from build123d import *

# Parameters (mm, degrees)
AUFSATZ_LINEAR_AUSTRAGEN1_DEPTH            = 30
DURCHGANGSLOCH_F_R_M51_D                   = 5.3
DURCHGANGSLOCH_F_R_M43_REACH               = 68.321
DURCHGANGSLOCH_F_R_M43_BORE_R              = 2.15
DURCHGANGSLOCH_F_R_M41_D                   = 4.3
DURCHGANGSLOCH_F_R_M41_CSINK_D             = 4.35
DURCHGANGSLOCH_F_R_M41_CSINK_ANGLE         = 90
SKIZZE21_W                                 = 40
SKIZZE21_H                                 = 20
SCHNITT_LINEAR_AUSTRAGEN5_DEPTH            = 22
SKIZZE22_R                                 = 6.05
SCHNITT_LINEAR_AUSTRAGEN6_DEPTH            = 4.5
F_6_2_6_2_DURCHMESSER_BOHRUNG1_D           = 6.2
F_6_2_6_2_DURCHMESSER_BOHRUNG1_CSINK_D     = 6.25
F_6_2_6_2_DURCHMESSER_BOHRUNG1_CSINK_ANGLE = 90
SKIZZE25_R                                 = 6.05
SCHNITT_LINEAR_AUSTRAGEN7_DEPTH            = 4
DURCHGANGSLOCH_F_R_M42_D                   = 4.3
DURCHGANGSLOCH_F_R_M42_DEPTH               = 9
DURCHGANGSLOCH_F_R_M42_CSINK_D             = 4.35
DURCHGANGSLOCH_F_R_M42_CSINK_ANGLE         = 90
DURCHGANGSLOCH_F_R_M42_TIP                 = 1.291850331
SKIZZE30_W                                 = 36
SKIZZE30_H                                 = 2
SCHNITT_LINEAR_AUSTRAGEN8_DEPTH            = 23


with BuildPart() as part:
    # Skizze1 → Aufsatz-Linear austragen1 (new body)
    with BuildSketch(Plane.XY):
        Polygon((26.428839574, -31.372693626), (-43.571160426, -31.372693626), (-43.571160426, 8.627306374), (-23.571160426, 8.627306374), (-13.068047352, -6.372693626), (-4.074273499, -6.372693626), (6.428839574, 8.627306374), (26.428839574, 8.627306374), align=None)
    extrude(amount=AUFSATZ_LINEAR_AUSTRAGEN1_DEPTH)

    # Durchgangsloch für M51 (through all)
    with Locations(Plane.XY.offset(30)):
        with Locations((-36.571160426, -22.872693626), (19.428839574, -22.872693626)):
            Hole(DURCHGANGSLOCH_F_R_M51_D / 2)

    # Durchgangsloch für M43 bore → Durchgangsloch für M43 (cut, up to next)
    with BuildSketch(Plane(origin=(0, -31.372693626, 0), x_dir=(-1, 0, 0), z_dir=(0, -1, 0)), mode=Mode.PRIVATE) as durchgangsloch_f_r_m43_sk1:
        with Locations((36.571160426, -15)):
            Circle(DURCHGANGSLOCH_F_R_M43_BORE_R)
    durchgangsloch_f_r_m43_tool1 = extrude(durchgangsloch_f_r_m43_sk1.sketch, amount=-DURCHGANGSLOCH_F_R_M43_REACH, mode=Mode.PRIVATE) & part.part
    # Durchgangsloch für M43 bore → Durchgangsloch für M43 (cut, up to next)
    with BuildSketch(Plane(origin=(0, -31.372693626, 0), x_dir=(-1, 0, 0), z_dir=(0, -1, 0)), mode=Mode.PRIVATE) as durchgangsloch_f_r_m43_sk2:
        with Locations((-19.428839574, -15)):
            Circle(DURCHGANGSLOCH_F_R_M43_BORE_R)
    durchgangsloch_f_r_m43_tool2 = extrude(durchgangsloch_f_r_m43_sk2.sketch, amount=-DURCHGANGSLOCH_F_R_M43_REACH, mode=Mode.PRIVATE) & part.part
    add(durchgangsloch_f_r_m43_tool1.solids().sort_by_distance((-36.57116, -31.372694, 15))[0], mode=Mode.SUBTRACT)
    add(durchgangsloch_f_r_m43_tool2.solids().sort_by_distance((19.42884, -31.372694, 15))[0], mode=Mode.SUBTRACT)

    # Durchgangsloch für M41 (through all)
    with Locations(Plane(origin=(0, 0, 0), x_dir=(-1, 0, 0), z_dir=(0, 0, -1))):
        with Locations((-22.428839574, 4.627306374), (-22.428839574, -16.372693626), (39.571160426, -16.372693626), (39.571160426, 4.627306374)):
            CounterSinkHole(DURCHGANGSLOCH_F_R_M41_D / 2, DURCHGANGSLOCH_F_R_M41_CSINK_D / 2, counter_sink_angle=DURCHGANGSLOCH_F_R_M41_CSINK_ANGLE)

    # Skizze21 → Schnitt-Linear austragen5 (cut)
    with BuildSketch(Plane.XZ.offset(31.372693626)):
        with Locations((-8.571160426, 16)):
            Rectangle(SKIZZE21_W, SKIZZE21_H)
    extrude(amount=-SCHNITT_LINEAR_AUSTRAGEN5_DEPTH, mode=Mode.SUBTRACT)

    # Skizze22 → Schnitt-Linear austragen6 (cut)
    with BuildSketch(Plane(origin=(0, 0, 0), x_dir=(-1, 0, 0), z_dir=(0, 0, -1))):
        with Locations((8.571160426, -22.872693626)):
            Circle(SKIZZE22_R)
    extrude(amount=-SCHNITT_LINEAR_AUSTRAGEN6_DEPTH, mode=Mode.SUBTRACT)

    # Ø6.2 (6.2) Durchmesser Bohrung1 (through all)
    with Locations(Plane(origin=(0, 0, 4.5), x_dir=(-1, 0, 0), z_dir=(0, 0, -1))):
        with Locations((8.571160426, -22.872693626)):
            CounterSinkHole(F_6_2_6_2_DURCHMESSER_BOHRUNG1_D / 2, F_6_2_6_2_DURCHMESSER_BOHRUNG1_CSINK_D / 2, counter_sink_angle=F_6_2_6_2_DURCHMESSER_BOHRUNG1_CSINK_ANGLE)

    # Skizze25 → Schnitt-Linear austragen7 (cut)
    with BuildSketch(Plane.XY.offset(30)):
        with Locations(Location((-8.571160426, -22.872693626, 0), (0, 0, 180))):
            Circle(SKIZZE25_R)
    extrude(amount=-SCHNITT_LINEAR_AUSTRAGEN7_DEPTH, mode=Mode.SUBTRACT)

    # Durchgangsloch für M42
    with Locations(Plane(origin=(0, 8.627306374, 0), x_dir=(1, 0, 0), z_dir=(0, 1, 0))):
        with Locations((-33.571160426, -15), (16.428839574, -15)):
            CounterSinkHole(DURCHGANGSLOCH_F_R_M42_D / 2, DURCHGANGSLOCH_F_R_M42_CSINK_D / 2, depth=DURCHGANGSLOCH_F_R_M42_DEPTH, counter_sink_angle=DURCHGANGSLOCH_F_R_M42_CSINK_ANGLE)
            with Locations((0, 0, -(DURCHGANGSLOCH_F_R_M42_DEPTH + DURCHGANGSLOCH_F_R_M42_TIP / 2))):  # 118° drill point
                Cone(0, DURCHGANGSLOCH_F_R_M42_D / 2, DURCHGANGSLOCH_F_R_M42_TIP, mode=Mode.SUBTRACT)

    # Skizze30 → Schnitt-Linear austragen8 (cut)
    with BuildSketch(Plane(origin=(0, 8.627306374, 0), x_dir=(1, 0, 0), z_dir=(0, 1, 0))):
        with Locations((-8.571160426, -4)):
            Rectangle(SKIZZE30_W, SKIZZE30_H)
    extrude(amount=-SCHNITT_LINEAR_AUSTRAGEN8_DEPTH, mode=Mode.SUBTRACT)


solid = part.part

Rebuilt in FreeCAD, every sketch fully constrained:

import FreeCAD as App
import Part
import Sketcher
Q = App.Units.Quantity


def add_polygon(sketch, points):
    """Adds a closed chain of lines whose ends are joined by coincident constraints."""
    first, n = sketch.GeometryCount, len(points)
    for a, b in zip(points, points[1:] + points[:1]):
        sketch.addGeometry(Part.LineSegment(App.Vector(*a, 0), App.Vector(*b, 0)), False)
    for i in range(n):
        sketch.addConstraint(Sketcher.Constraint("Coincident", first + i, 2, first + (i + 1) % n, 1))

doc = App.newDocument("Part")
body = doc.addObject("PartDesign::Body", "Body")

# Sketch on XY plane
sketch1 = body.newObject("Sketcher::SketchObject", "Sketch")
sketch1.AttachmentSupport = (doc.getObject("XY_Plane"), [""])
sketch1.MapMode = "FlatFace"
add_polygon(sketch1, [(-44, -31), (26, -31), (26, 9), (6, 9), (-4, -6), (-13, -6), (-24, 9), (-44, 9)])  # lines 0-7
sketch1.addConstraint([
    Sketcher.Constraint("Horizontal", 0),
    Sketcher.Constraint("Vertical", 1),
    Sketcher.Constraint("Horizontal", 2),
    Sketcher.Constraint("Horizontal", 4),
    Sketcher.Constraint("Horizontal", 6),
    Sketcher.Constraint("Vertical", 7),
    Sketcher.Constraint("Horizontal", 2, 2, 5, 2),
    Sketcher.Constraint("Equal", 2, 6),
    Sketcher.Constraint("Equal", 3, 5),
    Sketcher.Constraint("DistanceX", 0, 1, 0, 2, Q("70 mm")),
    Sketcher.Constraint("DistanceX", 2, 2, 2, 1, Q("20 mm")),
    Sketcher.Constraint("DistanceY", 1, 1, 1, 2, Q("40 mm")),
    Sketcher.Constraint("Angle", 3, Q("-125 deg")),
    Sketcher.Constraint("DistanceY", 3, 2, 2, 2, Q("15 mm")),
    Sketcher.Constraint("DistanceX", -1, 1, 0, 2, Q("26.42884 mm")),
    Sketcher.Constraint("DistanceY", 0, 2, -1, 1, Q("31.372694 mm")),
])
pad1 = body.newObject("PartDesign::Pad", "Pad")
pad1.Profile = sketch1
pad1.Length = 30

# Sketch on XY plane
sketch2 = body.newObject("Sketcher::SketchObject", "Sketch001")
sketch2.AttachmentSupport = (doc.getObject("XY_Plane"), [""])
sketch2.MapMode = "FlatFace"
sketch2.AttachmentOffset = App.Placement(App.Vector(0, 0, 30), App.Rotation())
sketch2.addGeometry([
    Part.Circle(App.Vector(-36.6, -22.9, 0), App.Vector(0, 0, 1), 2.6),
    Part.Circle(App.Vector(19.4, -22.9, 0), App.Vector(0, 0, 1), 2.6),
], False)
sketch2.addConstraint([
    Sketcher.Constraint("Equal", 0, 1),
    Sketcher.Constraint("Horizontal", 0, 3, 1, 3),
    Sketcher.Constraint("Diameter", 0, Q("5.3 mm")),
    Sketcher.Constraint("DistanceX", 0, 3, 1, 3, Q("56 mm")),
    Sketcher.Constraint("DistanceX", 0, 3, -1, 1, Q("36.57116 mm")),
    Sketcher.Constraint("DistanceY", 0, 3, -1, 1, Q("22.872694 mm")),
])
doc.recompute()
hole = body.newObject("PartDesign::Hole", "Hole")
hole.Profile = sketch2
hole.ThreadType = "None"
hole.Diameter = 5.3
hole.DepthType = "ThroughAll"

# Sketch on XZ plane
sketch3 = body.newObject("Sketcher::SketchObject", "Sketch002")
sketch3.AttachmentSupport = (doc.getObject("XZ_Plane"), [""])
sketch3.MapMode = "FlatFace"
sketch3.AttachmentOffset = App.Placement(App.Vector(0, 0, 31.372694), App.Rotation())
sketch3.addGeometry(Part.Circle(App.Vector(-36.6, 15, 0), App.Vector(0, 0, 1), 2.1), False)
sketch3.addConstraint([
    Sketcher.Constraint("Diameter", 0, Q("4.3 mm")),
    Sketcher.Constraint("DistanceY", -1, 1, 0, 3, Q("15 mm")),
    Sketcher.Constraint("DistanceX", 0, 3, -1, 1, Q("36.57116 mm")),
])
pocket1 = body.newObject("PartDesign::Pocket", "Pocket")
pocket1.Profile = sketch3
pocket1.Length = 6.950807

# Sketch on XZ plane
sketch4 = body.newObject("Sketcher::SketchObject", "Sketch003")
sketch4.AttachmentSupport = (doc.getObject("XZ_Plane"), [""])
sketch4.MapMode = "FlatFace"
sketch4.AttachmentOffset = App.Placement(App.Vector(0, 0, 31.372694), App.Rotation())
sketch4.addGeometry(Part.Circle(App.Vector(19.4, 15, 0), App.Vector(0, 0, 1), 2.1), False)
sketch4.addConstraint([
    Sketcher.Constraint("Diameter", 0, Q("4.3 mm")),
    Sketcher.Constraint("DistanceY", -1, 1, 0, 3, Q("15 mm")),
    Sketcher.Constraint("DistanceX", -1, 1, 0, 3, Q("19.42884 mm")),
])
pocket2 = body.newObject("PartDesign::Pocket", "Pocket001")
pocket2.Profile = sketch4
pocket2.Length = 6.950807

# Sketch on XY plane
sketch5 = body.newObject("Sketcher::SketchObject", "Sketch004")
sketch5.AttachmentSupport = (doc.getObject("XY_Plane"), [""])
sketch5.MapMode = "FlatFace"
sketch5.addGeometry([
    Part.Circle(App.Vector(22.4, 4.6, 0), App.Vector(0, 0, 1), 2.1),
    Part.Circle(App.Vector(22.4, -16.4, 0), App.Vector(0, 0, 1), 2.1),
    Part.Circle(App.Vector(-39.6, -16.4, 0), App.Vector(0, 0, 1), 2.1),
    Part.Circle(App.Vector(-39.6, 4.6, 0), App.Vector(0, 0, 1), 2.1),
], False)
sketch5.addConstraint([
    Sketcher.Constraint("Equal", 0, 1),
    Sketcher.Constraint("Equal", 1, 2),
    Sketcher.Constraint("Equal", 2, 3),
    Sketcher.Constraint("Horizontal", 1, 3, 2, 3),
    Sketcher.Constraint("Horizontal", 0, 3, 3, 3),
    Sketcher.Constraint("Vertical", 0, 3, 1, 3),
    Sketcher.Constraint("Vertical", 2, 3, 3, 3),
    Sketcher.Constraint("Diameter", 0, Q("4.3 mm")),
    Sketcher.Constraint("DistanceY", 1, 3, 0, 3, Q("21 mm")),
    Sketcher.Constraint("DistanceX", 2, 3, 1, 3, Q("62 mm")),
    Sketcher.Constraint("DistanceX", -1, 1, 0, 3, Q("22.42884 mm")),
    Sketcher.Constraint("DistanceY", -1, 1, 0, 3, Q("4.627306 mm")),
])
doc.recompute()
hole2 = body.newObject("PartDesign::Hole", "Hole001")
hole2.Profile = sketch5
hole2.ThreadType = "None"
hole2.Diameter = 4.3
hole2.DepthType = "ThroughAll"
hole2.HoleCutType = "Countersink"
hole2.HoleCutDiameter = 4.35
hole2.HoleCutCountersinkAngle = 90
hole2.Reversed = True

# Sketch on XZ plane
sketch6 = body.newObject("Sketcher::SketchObject", "Sketch005")
sketch6.AttachmentSupport = (doc.getObject("XZ_Plane"), [""])
sketch6.MapMode = "FlatFace"
sketch6.AttachmentOffset = App.Placement(App.Vector(0, 0, 31.372694), App.Rotation())
add_polygon(sketch6, [(-29, 26), (-29, 6), (11, 6), (11, 26)])  # lines 0-3
sketch6.addConstraint([
    Sketcher.Constraint("Vertical", 0),
    Sketcher.Constraint("Horizontal", 1),
    Sketcher.Constraint("Vertical", 2),
    Sketcher.Constraint("Horizontal", 3),
    Sketcher.Constraint("DistanceX", 1, 1, 1, 2, Q("40 mm")),
    Sketcher.Constraint("DistanceY", 0, 2, 0, 1, Q("20 mm")),
    Sketcher.Constraint("DistanceY", -1, 1, 0, 2, Q("6 mm")),
    Sketcher.Constraint("DistanceX", 0, 2, -1, 1, Q("28.57116 mm")),
])
pocket3 = body.newObject("PartDesign::Pocket", "Pocket002")
pocket3.Profile = sketch6
pocket3.Length = 22

# Sketch on XY plane
sketch7 = body.newObject("Sketcher::SketchObject", "Sketch006")
sketch7.AttachmentSupport = (doc.getObject("XY_Plane"), [""])
sketch7.MapMode = "FlatFace"
sketch7.addGeometry(Part.Circle(App.Vector(-9, -23, 0), App.Vector(0, 0, 1), 6), False)
sketch7.addConstraint([
    Sketcher.Constraint("Diameter", 0, Q("12.1 mm")),
    Sketcher.Constraint("DistanceX", 0, 3, -1, 1, Q("8.57116 mm")),
    Sketcher.Constraint("DistanceY", 0, 3, -1, 1, Q("22.872694 mm")),
])
pocket4 = body.newObject("PartDesign::Pocket", "Pocket003")
pocket4.Profile = sketch7
pocket4.Length = 4.5
pocket4.Reversed = True

# Sketch on XY plane
sketch8 = body.newObject("Sketcher::SketchObject", "Sketch007")
sketch8.AttachmentSupport = (doc.getObject("XY_Plane"), [""])
sketch8.MapMode = "FlatFace"
sketch8.AttachmentOffset = App.Placement(App.Vector(0, 0, 4.5), App.Rotation())
sketch8.addGeometry(Part.Circle(App.Vector(-8.6, -22.9, 0), App.Vector(0, 0, 1), 3.1), False)
sketch8.addConstraint([
    Sketcher.Constraint("Diameter", 0, Q("6.2 mm")),
    Sketcher.Constraint("DistanceX", 0, 3, -1, 1, Q("8.57116 mm")),
    Sketcher.Constraint("DistanceY", 0, 3, -1, 1, Q("22.872694 mm")),
])
doc.recompute()
hole3 = body.newObject("PartDesign::Hole", "Hole002")
hole3.Profile = sketch8
hole3.ThreadType = "None"
hole3.Diameter = 6.2
hole3.DepthType = "ThroughAll"
hole3.HoleCutType = "Countersink"
hole3.HoleCutDiameter = 6.25
hole3.HoleCutCountersinkAngle = 90
hole3.Reversed = True

# Sketch on XY plane
sketch9 = body.newObject("Sketcher::SketchObject", "Sketch008")
sketch9.AttachmentSupport = (doc.getObject("XY_Plane"), [""])
sketch9.MapMode = "FlatFace"
sketch9.AttachmentOffset = App.Placement(App.Vector(0, 0, 30), App.Rotation())
sketch9.addGeometry(Part.Circle(App.Vector(-9, -23, 0), App.Vector(0, 0, 1), 6), False)
sketch9.addConstraint([
    Sketcher.Constraint("Diameter", 0, Q("12.1 mm")),
    Sketcher.Constraint("DistanceX", 0, 3, -1, 1, Q("8.57116 mm")),
    Sketcher.Constraint("DistanceY", 0, 3, -1, 1, Q("22.872694 mm")),
])
pocket5 = body.newObject("PartDesign::Pocket", "Pocket004")
pocket5.Profile = sketch9
pocket5.Length = 4

# Sketch on XZ plane
sketch10 = body.newObject("Sketcher::SketchObject", "Sketch009")
sketch10.AttachmentSupport = (doc.getObject("XZ_Plane"), [""])
sketch10.MapMode = "FlatFace"
sketch10.AttachmentOffset = App.Placement(App.Vector(0, 0, -8.627306), App.Rotation())
sketch10.addGeometry([
    Part.Circle(App.Vector(-33.6, 15, 0), App.Vector(0, 0, 1), 2.1),
    Part.Circle(App.Vector(16.4, 15, 0), App.Vector(0, 0, 1), 2.1),
], False)
sketch10.addConstraint([
    Sketcher.Constraint("Equal", 0, 1),
    Sketcher.Constraint("Horizontal", 0, 3, 1, 3),
    Sketcher.Constraint("Diameter", 0, Q("4.3 mm")),
    Sketcher.Constraint("DistanceY", -1, 1, 0, 3, Q("15 mm")),
    Sketcher.Constraint("DistanceX", 0, 3, 1, 3, Q("50 mm")),
    Sketcher.Constraint("DistanceX", 0, 3, -1, 1, Q("33.57116 mm")),
])
doc.recompute()
hole4 = body.newObject("PartDesign::Hole", "Hole003")
hole4.Profile = sketch10
hole4.ThreadType = "None"
hole4.Diameter = 4.3
hole4.DepthType = "Dimension"
hole4.Depth = 9
hole4.DrillPoint = "Angled"
hole4.DrillPointAngle = 118
hole4.HoleCutType = "Countersink"
hole4.HoleCutDiameter = 4.35
hole4.HoleCutCountersinkAngle = 90
hole4.Reversed = True

# Sketch on XZ plane
sketch11 = body.newObject("Sketcher::SketchObject", "Sketch010")
sketch11.AttachmentSupport = (doc.getObject("XZ_Plane"), [""])
sketch11.MapMode = "FlatFace"
sketch11.AttachmentOffset = App.Placement(App.Vector(0, 0, -8.627306), App.Rotation())
add_polygon(sketch11, [(-26.6, 3), (-26.6, 5), (9.4, 5), (9.4, 3)])  # lines 0-3
sketch11.addConstraint([
    Sketcher.Constraint("Vertical", 0),
    Sketcher.Constraint("Horizontal", 1),
    Sketcher.Constraint("Vertical", 2),
    Sketcher.Constraint("Horizontal", 3),
    Sketcher.Constraint("DistanceX", 1, 1, 1, 2, Q("36 mm")),
    Sketcher.Constraint("DistanceY", 0, 1, 0, 2, Q("2 mm")),
    Sketcher.Constraint("DistanceY", -1, 1, 0, 2, Q("5 mm")),
    Sketcher.Constraint("DistanceX", 0, 2, -1, 1, Q("26.57116 mm")),
])
pocket6 = body.newObject("PartDesign::Pocket", "Pocket005")
pocket6.Profile = sketch11
pocket6.Length = 23
pocket6.Reversed = True

doc.recompute()
